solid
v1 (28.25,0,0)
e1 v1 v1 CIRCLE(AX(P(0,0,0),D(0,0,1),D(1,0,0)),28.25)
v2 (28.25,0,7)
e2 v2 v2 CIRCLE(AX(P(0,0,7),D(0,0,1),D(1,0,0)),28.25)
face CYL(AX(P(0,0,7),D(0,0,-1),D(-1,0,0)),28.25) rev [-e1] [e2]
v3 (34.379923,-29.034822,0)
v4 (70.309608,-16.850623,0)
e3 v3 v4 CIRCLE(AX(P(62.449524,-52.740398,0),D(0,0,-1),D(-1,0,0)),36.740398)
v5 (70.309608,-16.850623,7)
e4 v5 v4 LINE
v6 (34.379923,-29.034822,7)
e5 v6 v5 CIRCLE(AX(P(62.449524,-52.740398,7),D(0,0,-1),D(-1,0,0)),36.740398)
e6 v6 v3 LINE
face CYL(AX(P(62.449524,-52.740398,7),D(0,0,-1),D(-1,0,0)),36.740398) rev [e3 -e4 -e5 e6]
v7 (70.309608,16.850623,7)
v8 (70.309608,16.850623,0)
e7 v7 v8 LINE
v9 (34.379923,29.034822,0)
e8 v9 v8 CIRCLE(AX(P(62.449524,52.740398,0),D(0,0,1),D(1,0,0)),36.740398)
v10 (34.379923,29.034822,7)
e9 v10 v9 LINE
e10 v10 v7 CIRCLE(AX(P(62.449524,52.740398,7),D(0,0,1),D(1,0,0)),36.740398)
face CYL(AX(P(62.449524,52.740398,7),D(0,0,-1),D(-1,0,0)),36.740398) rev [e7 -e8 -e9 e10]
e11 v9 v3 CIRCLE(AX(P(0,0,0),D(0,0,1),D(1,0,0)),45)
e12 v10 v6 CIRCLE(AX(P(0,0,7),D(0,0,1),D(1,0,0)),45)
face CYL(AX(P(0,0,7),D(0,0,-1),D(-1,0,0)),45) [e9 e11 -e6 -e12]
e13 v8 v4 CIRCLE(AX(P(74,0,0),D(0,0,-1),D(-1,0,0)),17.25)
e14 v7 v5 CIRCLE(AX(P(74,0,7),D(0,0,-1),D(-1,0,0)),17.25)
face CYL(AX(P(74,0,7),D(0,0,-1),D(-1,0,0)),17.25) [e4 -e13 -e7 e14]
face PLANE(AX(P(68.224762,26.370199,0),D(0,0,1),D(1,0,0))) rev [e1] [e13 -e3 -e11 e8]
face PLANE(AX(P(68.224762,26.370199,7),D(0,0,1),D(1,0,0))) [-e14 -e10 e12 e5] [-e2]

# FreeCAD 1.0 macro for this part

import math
import FreeCAD as App
import Part
import Sketcher
from FreeCAD import Vector
Q = App.Units.Quantity

doc = App.newDocument("Part")
body = doc.addObject("PartDesign::Body", "Body")

sketch1 = body.newObject("Sketcher::SketchObject", "Sketch")
sketch1.AttachmentSupport = (doc.getObject("XY_Plane"), [""])
sketch1.MapMode = "FlatFace"
sketch1.addGeometry([
    Part.ArcOfCircle(Part.Circle(Vector(0, 0, 0), Vector(0, 0, 1), 45), math.radians(40.182042), math.radians(319.817958)),
    Part.ArcOfCircle(Part.Circle(Vector(62.449524, -52.740398, 0), Vector(0, 0, 1), 36.740398), math.radians(77.646903), math.radians(139.817958)),
    Part.ArcOfCircle(Part.Circle(Vector(74, 0, 0), Vector(0, 0, 1), 17.25), math.radians(-102.353097), math.radians(102.353097)),
    Part.ArcOfCircle(Part.Circle(Vector(62.449524, 52.740398, 0), Vector(0, 0, 1), 36.740398), math.radians(-139.817958), math.radians(-77.646903)),
    Part.Circle(Vector(0, 0, 0), Vector(0, 0, 1), 28.25),
], False)
sketch1.addConstraint([
    Sketcher.Constraint("Tangent", 0, 2, 1, 2),
    Sketcher.Constraint("Tangent", 1, 1, 2, 1),
    Sketcher.Constraint("Tangent", 2, 2, 3, 2),
    Sketcher.Constraint("Tangent", 3, 1, 0, 1),
    Sketcher.Constraint("Coincident", 0, 3, -1, 1),
    Sketcher.Constraint("Coincident", 4, 3, -1, 1),
    Sketcher.Constraint("Equal", 1, 3),
    Sketcher.Constraint("PointOnObject", 2, 3, -1),
    Sketcher.Constraint("Radius", 0, Q("45 mm")),
    Sketcher.Constraint("Diameter", 4, Q("56.5 mm")),
    Sketcher.Constraint("Radius", 2, Q("17.25 mm")),
    Sketcher.Constraint("DistanceX", -1, 1, 2, 3, Q("74 mm")),
    Sketcher.Constraint("Radius", 1, Q("36.740398 mm")),
])
pad1 = body.newObject("PartDesign::Pad", "Pad")
pad1.Profile = sketch1
pad1.Length = 7

doc.recompute()
